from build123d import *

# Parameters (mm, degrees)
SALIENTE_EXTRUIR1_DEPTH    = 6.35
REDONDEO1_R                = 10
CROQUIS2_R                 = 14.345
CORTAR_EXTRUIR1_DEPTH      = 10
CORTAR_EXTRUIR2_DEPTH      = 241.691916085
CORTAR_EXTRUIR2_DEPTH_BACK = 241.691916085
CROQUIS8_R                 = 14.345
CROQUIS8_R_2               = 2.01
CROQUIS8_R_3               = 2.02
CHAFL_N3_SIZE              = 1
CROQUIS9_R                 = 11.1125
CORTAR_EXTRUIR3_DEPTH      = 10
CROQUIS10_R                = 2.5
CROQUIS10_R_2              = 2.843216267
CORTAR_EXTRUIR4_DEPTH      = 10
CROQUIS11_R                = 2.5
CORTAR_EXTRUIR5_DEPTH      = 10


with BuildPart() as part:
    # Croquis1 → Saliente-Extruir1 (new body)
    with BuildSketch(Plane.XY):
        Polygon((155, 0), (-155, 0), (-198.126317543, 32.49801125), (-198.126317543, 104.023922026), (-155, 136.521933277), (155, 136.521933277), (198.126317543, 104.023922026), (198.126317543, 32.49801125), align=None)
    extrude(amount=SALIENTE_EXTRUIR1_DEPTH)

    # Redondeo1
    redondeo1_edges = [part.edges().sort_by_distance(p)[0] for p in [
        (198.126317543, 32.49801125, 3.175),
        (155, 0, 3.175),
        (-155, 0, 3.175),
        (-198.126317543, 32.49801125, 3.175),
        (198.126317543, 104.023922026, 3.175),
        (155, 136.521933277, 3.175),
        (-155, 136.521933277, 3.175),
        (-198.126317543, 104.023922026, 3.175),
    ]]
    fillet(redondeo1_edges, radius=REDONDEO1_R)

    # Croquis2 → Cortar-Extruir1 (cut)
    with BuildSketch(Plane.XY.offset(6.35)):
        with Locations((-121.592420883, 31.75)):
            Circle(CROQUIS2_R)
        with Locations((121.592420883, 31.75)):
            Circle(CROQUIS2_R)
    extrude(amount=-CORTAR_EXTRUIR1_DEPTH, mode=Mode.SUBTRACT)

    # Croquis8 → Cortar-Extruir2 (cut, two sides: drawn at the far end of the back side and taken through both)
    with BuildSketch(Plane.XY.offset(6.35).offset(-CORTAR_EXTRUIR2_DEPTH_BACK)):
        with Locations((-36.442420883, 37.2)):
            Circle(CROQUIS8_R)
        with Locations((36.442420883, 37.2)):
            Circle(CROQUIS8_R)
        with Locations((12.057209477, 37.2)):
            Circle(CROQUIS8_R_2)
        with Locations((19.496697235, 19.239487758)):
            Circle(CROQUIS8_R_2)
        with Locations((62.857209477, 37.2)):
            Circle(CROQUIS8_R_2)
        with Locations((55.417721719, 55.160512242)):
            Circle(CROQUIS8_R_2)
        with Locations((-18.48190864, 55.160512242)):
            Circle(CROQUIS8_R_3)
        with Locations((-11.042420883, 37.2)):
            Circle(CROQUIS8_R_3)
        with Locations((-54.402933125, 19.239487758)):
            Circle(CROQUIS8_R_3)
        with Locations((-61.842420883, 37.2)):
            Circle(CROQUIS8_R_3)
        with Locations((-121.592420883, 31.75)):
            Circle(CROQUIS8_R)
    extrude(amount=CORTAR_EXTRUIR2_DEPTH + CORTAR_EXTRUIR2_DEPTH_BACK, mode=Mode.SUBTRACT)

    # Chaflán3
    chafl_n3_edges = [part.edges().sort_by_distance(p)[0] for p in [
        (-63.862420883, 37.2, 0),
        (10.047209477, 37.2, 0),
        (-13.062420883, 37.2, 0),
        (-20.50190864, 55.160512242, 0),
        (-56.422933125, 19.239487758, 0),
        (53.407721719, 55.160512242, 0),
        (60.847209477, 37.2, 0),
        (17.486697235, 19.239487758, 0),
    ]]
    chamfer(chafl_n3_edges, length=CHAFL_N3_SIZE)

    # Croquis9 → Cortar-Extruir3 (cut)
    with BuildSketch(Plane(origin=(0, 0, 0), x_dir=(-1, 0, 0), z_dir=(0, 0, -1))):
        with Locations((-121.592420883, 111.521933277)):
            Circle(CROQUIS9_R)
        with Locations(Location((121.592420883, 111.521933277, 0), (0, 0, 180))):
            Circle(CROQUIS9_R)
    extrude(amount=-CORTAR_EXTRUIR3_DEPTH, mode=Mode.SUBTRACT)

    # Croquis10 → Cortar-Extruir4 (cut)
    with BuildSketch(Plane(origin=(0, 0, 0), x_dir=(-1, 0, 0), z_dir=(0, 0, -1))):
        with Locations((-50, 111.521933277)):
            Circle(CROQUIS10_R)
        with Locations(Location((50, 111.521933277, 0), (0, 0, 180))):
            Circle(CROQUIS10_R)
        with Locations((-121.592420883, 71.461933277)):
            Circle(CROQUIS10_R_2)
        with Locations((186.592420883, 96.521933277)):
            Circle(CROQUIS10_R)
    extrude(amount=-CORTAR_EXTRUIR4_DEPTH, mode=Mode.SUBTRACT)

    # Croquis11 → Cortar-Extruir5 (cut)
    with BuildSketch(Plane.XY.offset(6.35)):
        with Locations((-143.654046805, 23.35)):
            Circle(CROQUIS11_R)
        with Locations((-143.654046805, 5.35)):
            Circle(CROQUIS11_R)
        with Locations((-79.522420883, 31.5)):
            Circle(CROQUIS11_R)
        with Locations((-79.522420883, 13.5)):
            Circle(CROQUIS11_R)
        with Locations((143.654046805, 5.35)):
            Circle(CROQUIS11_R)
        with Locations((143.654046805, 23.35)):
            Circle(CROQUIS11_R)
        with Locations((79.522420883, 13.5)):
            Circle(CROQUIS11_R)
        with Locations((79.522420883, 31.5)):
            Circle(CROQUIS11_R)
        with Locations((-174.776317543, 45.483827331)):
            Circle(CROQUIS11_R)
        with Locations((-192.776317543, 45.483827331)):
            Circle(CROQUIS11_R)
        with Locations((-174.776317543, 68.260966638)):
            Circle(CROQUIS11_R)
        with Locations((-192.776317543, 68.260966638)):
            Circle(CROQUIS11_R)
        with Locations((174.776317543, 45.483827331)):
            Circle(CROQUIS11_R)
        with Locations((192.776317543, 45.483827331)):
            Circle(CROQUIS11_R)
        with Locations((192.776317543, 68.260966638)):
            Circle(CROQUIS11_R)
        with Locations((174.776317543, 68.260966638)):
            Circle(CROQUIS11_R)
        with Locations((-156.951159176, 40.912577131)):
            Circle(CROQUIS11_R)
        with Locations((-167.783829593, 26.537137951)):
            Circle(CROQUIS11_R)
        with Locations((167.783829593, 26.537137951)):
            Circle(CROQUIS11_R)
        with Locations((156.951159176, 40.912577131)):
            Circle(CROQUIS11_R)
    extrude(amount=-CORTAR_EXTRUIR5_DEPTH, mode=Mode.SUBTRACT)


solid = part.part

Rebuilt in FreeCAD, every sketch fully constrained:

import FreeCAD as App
import Part
import Sketcher
from FreeCAD import Vector
Q = App.Units.Quantity


def edges_at(feature, points):
    """Names of the edges that pass closest to the given points."""
    edges = feature.Shape.Edges
    near = lambda p: min(range(len(edges)), key=lambda i: edges[i].distToShape(Part.Vertex(*p))[0])
    return sorted({f"Edge{near(p) + 1}" for p in points})


def add_polygon(sketch, points):
    """Adds a closed chain of lines whose ends are joined by coincident constraints."""
    first, n = sketch.GeometryCount, len(points)
    for a, b in zip(points, points[1:] + points[:1]):
        sketch.addGeometry(Part.LineSegment(App.Vector(*a, 0), App.Vector(*b, 0)), False)
    for i in range(n):
        sketch.addConstraint(Sketcher.Constraint("Coincident", first + i, 2, first + (i + 1) % n, 1))

doc = App.newDocument("Part")
body = doc.addObject("PartDesign::Body", "Body")

# Sketch on XY plane
sketch1 = body.newObject("Sketcher::SketchObject", "Sketch")
sketch1.AttachmentSupport = (doc.getObject("XY_Plane"), [""])
sketch1.MapMode = "FlatFace"
add_polygon(sketch1, [(-155, 0), (155, 0), (198, 32), (198, 104), (155, 137), (-155, 137), (-198, 104), (-198, 32)])  # lines 0-7
sketch1.addConstraint([
    Sketcher.Constraint("Horizontal", 0),
    Sketcher.Constraint("Vertical", 2),
    Sketcher.Constraint("Horizontal", 4),
    Sketcher.Constraint("Vertical", 6),
    Sketcher.Constraint("Symmetric", 0, 2, 7, 2, -1, 1),
    Sketcher.Constraint("Symmetric", 2, 2, 5, 2, -2),
    Sketcher.Constraint("Parallel", 1, 5),
    Sketcher.Constraint("Parallel", 3, 7),
    Sketcher.Constraint("Horizontal", 1, 2, 6, 2),
    Sketcher.Constraint("Vertical", 0, 2, 3, 2),
    Sketcher.Constraint("DistanceX", 0, 1, 0, 2, Q("310 mm")),
    Sketcher.Constraint("Angle", 1, Q("37 deg")),
    Sketcher.Constraint("Distance", 1, Q("54 mm")),
    Sketcher.Constraint("DistanceY", 2, 1, 2, 2, Q("71.525911 mm")),
])
pad1 = body.newObject("PartDesign::Pad", "Pad")
pad1.Profile = sketch1
pad1.Length = 6.35
doc.recompute()

fillet = body.newObject("PartDesign::Fillet", "Fillet")
fillet.Base = (pad1, edges_at(pad1, [
    (198.126, 32.498, 3.175),
    (155, 0, 3.175),
    (-155, 0, 3.175),
    (-198.126, 32.498, 3.175),
    (198.126, 104.024, 3.175),
    (155, 136.522, 3.175),
    (-155, 136.522, 3.175),
    (-198.126, 104.024, 3.175),
]))
fillet.Radius = 10

# Sketch on XY plane
sketch2 = body.newObject("Sketcher::SketchObject", "Sketch001")
sketch2.AttachmentSupport = (doc.getObject("XY_Plane"), [""])
sketch2.MapMode = "FlatFace"
sketch2.AttachmentOffset = App.Placement(Vector(0, 0, 6.35), App.Rotation())
sketch2.addGeometry([
    Part.Circle(Vector(-122, 32, 0), Vector(0, 0, 1), 14),
    Part.Circle(Vector(122, 32, 0), Vector(0, 0, 1), 14),
], False)
sketch2.addConstraint([
    Sketcher.Constraint("Equal", 0, 1),
    Sketcher.Constraint("Symmetric", 0, 3, 1, 3, -2),
    Sketcher.Constraint("Diameter", 0, Q("28.69 mm")),
    Sketcher.Constraint("DistanceY", -1, 1, 0, 3, Q("31.75 mm")),
    Sketcher.Constraint("DistanceX", 0, 3, -1, 1, Q("121.592421 mm")),
])
pocket1 = body.newObject("PartDesign::Pocket", "Pocket")
pocket1.Profile = sketch2
pocket1.Length = 10

# Sketch on XY plane
sketch3 = body.newObject("Sketcher::SketchObject", "Sketch002")
sketch3.AttachmentSupport = (doc.getObject("XY_Plane"), [""])
sketch3.MapMode = "FlatFace"
sketch3.AttachmentOffset = App.Placement(Vector(0, 0, 6.35), App.Rotation())
sketch3.addGeometry([
    Part.Circle(Vector(-36.4, 37.2, 0), Vector(0, 0, 1), 14.3),  # 0
    Part.Circle(Vector(36.4, 37.2, 0), Vector(0, 0, 1), 14.3),  # 1
    Part.Circle(Vector(12.1, 37.2, 0), Vector(0, 0, 1), 2),  # 2
    Part.Circle(Vector(19.5, 19.2, 0), Vector(0, 0, 1), 2),  # 3
    Part.Circle(Vector(62.9, 37.2, 0), Vector(0, 0, 1), 2),  # 4
    Part.Circle(Vector(55.4, 55.2, 0), Vector(0, 0, 1), 2),  # 5
    Part.Circle(Vector(-18.5, 55.2, 0), Vector(0, 0, 1), 2),  # 6
    Part.Circle(Vector(-11, 37.2, 0), Vector(0, 0, 1), 2),  # 7
    Part.Circle(Vector(-54.4, 19.2, 0), Vector(0, 0, 1), 2),  # 8
    Part.Circle(Vector(-61.8, 37.2, 0), Vector(0, 0, 1), 2),  # 9
    Part.Circle(Vector(-121.6, 31.8, 0), Vector(0, 0, 1), 14.3),  # 10
], False)
sketch3.addConstraint([
    Sketcher.Constraint("Equal", 0, 1),
    Sketcher.Constraint("Equal", 2, 3),
    Sketcher.Constraint("Equal", 3, 4),
    Sketcher.Constraint("Equal", 4, 5),
    Sketcher.Constraint("Equal", 6, 7),
    Sketcher.Constraint("Equal", 7, 8),
    Sketcher.Constraint("Equal", 8, 9),
    Sketcher.Constraint("Equal", 1, 10),
    Sketcher.Constraint("Symmetric", 0, 3, 1, 3, -2),
    Sketcher.Constraint("Horizontal", 1, 3, 2, 3),
    Sketcher.Constraint("Horizontal", 2, 3, 4, 3),
    Sketcher.Constraint("Horizontal", 5, 3, 6, 3),
    Sketcher.Constraint("Horizontal", 4, 3, 7, 3),
    Sketcher.Constraint("Horizontal", 3, 3, 8, 3),
    Sketcher.Constraint("Horizontal", 7, 3, 9, 3),
    Sketcher.Constraint("Diameter", 0, Q("28.69 mm")),
    Sketcher.Constraint("Diameter", 2, Q("4.02 mm")),
    Sketcher.Constraint("Diameter", 6, Q("4.04 mm")),
    Sketcher.Constraint("DistanceY", -1, 1, 0, 3, Q("37.2 mm")),
    Sketcher.Constraint("DistanceX", 2, 3, 4, 3, Q("50.8 mm")),
    Sketcher.Constraint("DistanceX", 0, 3, 7, 3, Q("25.4 mm")),
    Sketcher.Constraint("DistanceX", 9, 3, 0, 3, Q("25.4 mm")),
    Sketcher.Constraint("DistanceY", -1, 1, 10, 3, Q("31.75 mm")),
    Sketcher.Constraint("DistanceX", 10, 3, 9, 3, Q("59.75 mm")),
    Sketcher.Constraint("DistanceX", 1, 3, 5, 3, Q("18.975301 mm")),
    Sketcher.Constraint("DistanceX", 0, 3, -1, 1, Q("36.442421 mm")),
    Sketcher.Constraint("DistanceX", -1, 1, 2, 3, Q("12.057209 mm")),
    Sketcher.Constraint("DistanceX", 6, 3, -1, 1, Q("18.481909 mm")),
    Sketcher.Constraint("DistanceX", 0, 3, 3, 3, Q("55.939118 mm")),
    Sketcher.Constraint("DistanceX", 8, 3, 3, 3, Q("73.89963 mm")),
    Sketcher.Constraint("DistanceY", -1, 1, 3, 3, Q("19.239488 mm")),
    Sketcher.Constraint("DistanceY", -1, 1, 5, 3, Q("55.160512 mm")),
])
pocket2 = body.newObject("PartDesign::Pocket", "Pocket001")
pocket2.Profile = sketch3
pocket2.Type = "ThroughAll"
pocket2.Midplane = True
doc.recompute()

chamfer = body.newObject("PartDesign::Chamfer", "Chamfer")
chamfer.Base = (pocket2, edges_at(pocket2, [
    (-63.862, 37.2, 0),
    (10.047, 37.2, 0),
    (-13.062, 37.2, 0),
    (-20.502, 55.161, 0),
    (-56.423, 19.239, 0),
    (53.408, 55.161, 0),
    (60.847, 37.2, 0),
    (17.487, 19.239, 0),
]))
chamfer.Size = 1

# Sketch on XY plane
sketch4 = body.newObject("Sketcher::SketchObject", "Sketch003")
sketch4.AttachmentSupport = (doc.getObject("XY_Plane"), [""])
sketch4.MapMode = "FlatFace"
sketch4.addGeometry([
    Part.Circle(Vector(122, 112, 0), Vector(0, 0, 1), 11),
    Part.Circle(Vector(-122, 112, 0), Vector(0, 0, 1), 11),
], False)
sketch4.addConstraint([
    Sketcher.Constraint("Equal", 0, 1),
    Sketcher.Constraint("Symmetric", 0, 3, 1, 3, -2),
    Sketcher.Constraint("Diameter", 0, Q("22.225 mm")),
    Sketcher.Constraint("DistanceX", -1, 1, 0, 3, Q("121.592421 mm")),
    Sketcher.Constraint("DistanceY", -1, 1, 0, 3, Q("111.521933 mm")),
])
pocket3 = body.newObject("PartDesign::Pocket", "Pocket002")
pocket3.Profile = sketch4
pocket3.Length = 10
pocket3.Reversed = True

# Sketch on XY plane
sketch5 = body.newObject("Sketcher::SketchObject", "Sketch004")
sketch5.AttachmentSupport = (doc.getObject("XY_Plane"), [""])
sketch5.MapMode = "FlatFace"
sketch5.addGeometry([
    Part.Circle(Vector(50, 111.5, 0), Vector(0, 0, 1), 2.5),
    Part.Circle(Vector(-50, 111.5, 0), Vector(0, 0, 1), 2.5),
    Part.Circle(Vector(121.6, 71.5, 0), Vector(0, 0, 1), 2.8),
    Part.Circle(Vector(-186.6, 96.5, 0), Vector(0, 0, 1), 2.5),
], False)
sketch5.addConstraint([
    Sketcher.Constraint("Equal", 0, 1),
    Sketcher.Constraint("Equal", 1, 3),
    Sketcher.Constraint("Symmetric", 0, 3, 1, 3, -2),
    Sketcher.Constraint("Diameter", 0, Q("5 mm")),
    Sketcher.Constraint("DistanceX", -1, 1, 0, 3, Q("50 mm")),
    Sketcher.Constraint("DistanceY", 3, 3, 1, 3, Q("15 mm")),
    Sketcher.Constraint("DistanceY", 2, 3, 0, 3, Q("40.06 mm")),
    Sketcher.Constraint("Diameter", 2, Q("5.686433 mm")),
    Sketcher.Constraint("DistanceX", -1, 1, 2, 3, Q("121.592421 mm")),
    Sketcher.Constraint("DistanceX", 3, 3, -1, 1, Q("186.592421 mm")),
    Sketcher.Constraint("DistanceY", -1, 1, 0, 3, Q("111.521933 mm")),
])
pocket4 = body.newObject("PartDesign::Pocket", "Pocket003")
pocket4.Profile = sketch5
pocket4.Length = 10
pocket4.Reversed = True

# Sketch on XY plane
sketch6 = body.newObject("Sketcher::SketchObject", "Sketch005")
sketch6.AttachmentSupport = (doc.getObject("XY_Plane"), [""])
sketch6.MapMode = "FlatFace"
sketch6.AttachmentOffset = App.Placement(Vector(0, 0, 6.35), App.Rotation())
sketch6.addGeometry([
    Part.Circle(Vector(-143.7, 23.4, 0), Vector(0, 0, 1), 2.5),  # 0
    Part.Circle(Vector(-143.7, 5.3, 0), Vector(0, 0, 1), 2.5),  # 1
    Part.Circle(Vector(-79.5, 31.5, 0), Vector(0, 0, 1), 2.5),  # 2
    Part.Circle(Vector(-79.5, 13.5, 0), Vector(0, 0, 1), 2.5),  # 3
    Part.Circle(Vector(143.7, 5.3, 0), Vector(0, 0, 1), 2.5),  # 4
    Part.Circle(Vector(143.7, 23.4, 0), Vector(0, 0, 1), 2.5),  # 5
    Part.Circle(Vector(79.5, 13.5, 0), Vector(0, 0, 1), 2.5),  # 6
    Part.Circle(Vector(79.5, 31.5, 0), Vector(0, 0, 1), 2.5),  # 7
    Part.Circle(Vector(-174.8, 45.5, 0), Vector(0, 0, 1), 2.5),  # 8
    Part.Circle(Vector(-192.8, 45.5, 0), Vector(0, 0, 1), 2.5),  # 9
    Part.Circle(Vector(-174.8, 68.3, 0), Vector(0, 0, 1), 2.5),  # 10
    Part.Circle(Vector(-192.8, 68.3, 0), Vector(0, 0, 1), 2.5),  # 11
    Part.Circle(Vector(174.8, 45.5, 0), Vector(0, 0, 1), 2.5),  # 12
    Part.Circle(Vector(192.8, 45.5, 0), Vector(0, 0, 1), 2.5),  # 13
    Part.Circle(Vector(192.8, 68.3, 0), Vector(0, 0, 1), 2.5),  # 14
    Part.Circle(Vector(174.8, 68.3, 0), Vector(0, 0, 1), 2.5),  # 15
    Part.Circle(Vector(-157, 40.9, 0), Vector(0, 0, 1), 2.5),  # 16
    Part.Circle(Vector(-167.8, 26.5, 0), Vector(0, 0, 1), 2.5),  # 17
    Part.Circle(Vector(167.8, 26.5, 0), Vector(0, 0, 1), 2.5),  # 18
    Part.Circle(Vector(157, 40.9, 0), Vector(0, 0, 1), 2.5),  # 19
], False)
sketch6.addConstraint([
    Sketcher.Constraint("Equal", 0, 1),
    Sketcher.Constraint("Equal", 1, 2),
    Sketcher.Constraint("Equal", 2, 3),
    Sketcher.Constraint("Equal", 3, 4),
    Sketcher.Constraint("Equal", 4, 5),
    Sketcher.Constraint("Equal", 5, 6),
    Sketcher.Constraint("Equal", 6, 7),
    Sketcher.Constraint("Equal", 7, 8),
    Sketcher.Constraint("Equal", 8, 9),
    Sketcher.Constraint("Equal", 9, 10),
    Sketcher.Constraint("Equal", 10, 11),
    Sketcher.Constraint("Equal", 11, 12),
    Sketcher.Constraint("Equal", 12, 13),
    Sketcher.Constraint("Equal", 13, 14),
    Sketcher.Constraint("Equal", 14, 15),
    Sketcher.Constraint("Equal", 15, 16),
    Sketcher.Constraint("Equal", 16, 17),
    Sketcher.Constraint("Equal", 17, 18),
    Sketcher.Constraint("Equal", 18, 19),
    Sketcher.Constraint("Symmetric", 1, 3, 4, 3, -2),
    Sketcher.Constraint("Symmetric", 0, 3, 5, 3, -2),
    Sketcher.Constraint("Symmetric", 3, 3, 6, 3, -2),
    Sketcher.Constraint("Symmetric", 2, 3, 7, 3, -2),
    Sketcher.Constraint("Symmetric", 8, 3, 12, 3, -2),
    Sketcher.Constraint("Symmetric", 9, 3, 13, 3, -2),
    Sketcher.Constraint("Symmetric", 11, 3, 14, 3, -2),
    Sketcher.Constraint("Symmetric", 10, 3, 15, 3, -2),
    Sketcher.Constraint("Symmetric", 17, 3, 18, 3, -2),
    Sketcher.Constraint("Symmetric", 16, 3, 19, 3, -2),
    Sketcher.Constraint("Horizontal", 8, 3, 9, 3),
    Sketcher.Constraint("Horizontal", 10, 3, 11, 3),
    Sketcher.Constraint("Vertical", 0, 3, 1, 3),
    Sketcher.Constraint("Vertical", 2, 3, 3, 3),
    Sketcher.Constraint("Vertical", 8, 3, 10, 3),
    Sketcher.Constraint("Vertical", 9, 3, 11, 3),
    Sketcher.Constraint("Diameter", 0, Q("5 mm")),
    Sketcher.Constraint("DistanceY", 1, 3, 0, 3, Q("18 mm")),
    Sketcher.Constraint("DistanceY", 3, 3, 2, 3, Q("18 mm")),
    Sketcher.Constraint("DistanceX", 9, 3, 8, 3, Q("18 mm")),
    Sketcher.Constraint("DistanceY", -1, 1, 2, 3, Q("31.5 mm")),
    Sketcher.Constraint("DistanceY", -1, 1, 0, 3, Q("23.35 mm")),
    Sketcher.Constraint("DistanceX", 2, 3, -1, 1, Q("79.522421 mm")),
    Sketcher.Constraint("DistanceX", 16, 3, -1, 1, Q("156.951159 mm")),
    Sketcher.Constraint("DistanceX", 17, 3, -1, 1, Q("167.78383 mm")),
    Sketcher.Constraint("DistanceX", 8, 3, 0, 3, Q("31.122271 mm")),
    Sketcher.Constraint("DistanceX", 8, 3, 7, 3, Q("254.298738 mm")),
    Sketcher.Constraint("DistanceY", 8, 3, 10, 3, Q("22.777139 mm")),
    Sketcher.Constraint("DistanceY", 16, 3, 8, 3, Q("4.57125 mm")),
    Sketcher.Constraint("DistanceY", 17, 3, 16, 3, Q("14.375439 mm")),
    Sketcher.Constraint("DistanceY", -1, 1, 8, 3, Q("45.483827 mm")),
])
pocket5 = body.newObject("PartDesign::Pocket", "Pocket004")
pocket5.Profile = sketch6
pocket5.Length = 10

doc.recompute()
